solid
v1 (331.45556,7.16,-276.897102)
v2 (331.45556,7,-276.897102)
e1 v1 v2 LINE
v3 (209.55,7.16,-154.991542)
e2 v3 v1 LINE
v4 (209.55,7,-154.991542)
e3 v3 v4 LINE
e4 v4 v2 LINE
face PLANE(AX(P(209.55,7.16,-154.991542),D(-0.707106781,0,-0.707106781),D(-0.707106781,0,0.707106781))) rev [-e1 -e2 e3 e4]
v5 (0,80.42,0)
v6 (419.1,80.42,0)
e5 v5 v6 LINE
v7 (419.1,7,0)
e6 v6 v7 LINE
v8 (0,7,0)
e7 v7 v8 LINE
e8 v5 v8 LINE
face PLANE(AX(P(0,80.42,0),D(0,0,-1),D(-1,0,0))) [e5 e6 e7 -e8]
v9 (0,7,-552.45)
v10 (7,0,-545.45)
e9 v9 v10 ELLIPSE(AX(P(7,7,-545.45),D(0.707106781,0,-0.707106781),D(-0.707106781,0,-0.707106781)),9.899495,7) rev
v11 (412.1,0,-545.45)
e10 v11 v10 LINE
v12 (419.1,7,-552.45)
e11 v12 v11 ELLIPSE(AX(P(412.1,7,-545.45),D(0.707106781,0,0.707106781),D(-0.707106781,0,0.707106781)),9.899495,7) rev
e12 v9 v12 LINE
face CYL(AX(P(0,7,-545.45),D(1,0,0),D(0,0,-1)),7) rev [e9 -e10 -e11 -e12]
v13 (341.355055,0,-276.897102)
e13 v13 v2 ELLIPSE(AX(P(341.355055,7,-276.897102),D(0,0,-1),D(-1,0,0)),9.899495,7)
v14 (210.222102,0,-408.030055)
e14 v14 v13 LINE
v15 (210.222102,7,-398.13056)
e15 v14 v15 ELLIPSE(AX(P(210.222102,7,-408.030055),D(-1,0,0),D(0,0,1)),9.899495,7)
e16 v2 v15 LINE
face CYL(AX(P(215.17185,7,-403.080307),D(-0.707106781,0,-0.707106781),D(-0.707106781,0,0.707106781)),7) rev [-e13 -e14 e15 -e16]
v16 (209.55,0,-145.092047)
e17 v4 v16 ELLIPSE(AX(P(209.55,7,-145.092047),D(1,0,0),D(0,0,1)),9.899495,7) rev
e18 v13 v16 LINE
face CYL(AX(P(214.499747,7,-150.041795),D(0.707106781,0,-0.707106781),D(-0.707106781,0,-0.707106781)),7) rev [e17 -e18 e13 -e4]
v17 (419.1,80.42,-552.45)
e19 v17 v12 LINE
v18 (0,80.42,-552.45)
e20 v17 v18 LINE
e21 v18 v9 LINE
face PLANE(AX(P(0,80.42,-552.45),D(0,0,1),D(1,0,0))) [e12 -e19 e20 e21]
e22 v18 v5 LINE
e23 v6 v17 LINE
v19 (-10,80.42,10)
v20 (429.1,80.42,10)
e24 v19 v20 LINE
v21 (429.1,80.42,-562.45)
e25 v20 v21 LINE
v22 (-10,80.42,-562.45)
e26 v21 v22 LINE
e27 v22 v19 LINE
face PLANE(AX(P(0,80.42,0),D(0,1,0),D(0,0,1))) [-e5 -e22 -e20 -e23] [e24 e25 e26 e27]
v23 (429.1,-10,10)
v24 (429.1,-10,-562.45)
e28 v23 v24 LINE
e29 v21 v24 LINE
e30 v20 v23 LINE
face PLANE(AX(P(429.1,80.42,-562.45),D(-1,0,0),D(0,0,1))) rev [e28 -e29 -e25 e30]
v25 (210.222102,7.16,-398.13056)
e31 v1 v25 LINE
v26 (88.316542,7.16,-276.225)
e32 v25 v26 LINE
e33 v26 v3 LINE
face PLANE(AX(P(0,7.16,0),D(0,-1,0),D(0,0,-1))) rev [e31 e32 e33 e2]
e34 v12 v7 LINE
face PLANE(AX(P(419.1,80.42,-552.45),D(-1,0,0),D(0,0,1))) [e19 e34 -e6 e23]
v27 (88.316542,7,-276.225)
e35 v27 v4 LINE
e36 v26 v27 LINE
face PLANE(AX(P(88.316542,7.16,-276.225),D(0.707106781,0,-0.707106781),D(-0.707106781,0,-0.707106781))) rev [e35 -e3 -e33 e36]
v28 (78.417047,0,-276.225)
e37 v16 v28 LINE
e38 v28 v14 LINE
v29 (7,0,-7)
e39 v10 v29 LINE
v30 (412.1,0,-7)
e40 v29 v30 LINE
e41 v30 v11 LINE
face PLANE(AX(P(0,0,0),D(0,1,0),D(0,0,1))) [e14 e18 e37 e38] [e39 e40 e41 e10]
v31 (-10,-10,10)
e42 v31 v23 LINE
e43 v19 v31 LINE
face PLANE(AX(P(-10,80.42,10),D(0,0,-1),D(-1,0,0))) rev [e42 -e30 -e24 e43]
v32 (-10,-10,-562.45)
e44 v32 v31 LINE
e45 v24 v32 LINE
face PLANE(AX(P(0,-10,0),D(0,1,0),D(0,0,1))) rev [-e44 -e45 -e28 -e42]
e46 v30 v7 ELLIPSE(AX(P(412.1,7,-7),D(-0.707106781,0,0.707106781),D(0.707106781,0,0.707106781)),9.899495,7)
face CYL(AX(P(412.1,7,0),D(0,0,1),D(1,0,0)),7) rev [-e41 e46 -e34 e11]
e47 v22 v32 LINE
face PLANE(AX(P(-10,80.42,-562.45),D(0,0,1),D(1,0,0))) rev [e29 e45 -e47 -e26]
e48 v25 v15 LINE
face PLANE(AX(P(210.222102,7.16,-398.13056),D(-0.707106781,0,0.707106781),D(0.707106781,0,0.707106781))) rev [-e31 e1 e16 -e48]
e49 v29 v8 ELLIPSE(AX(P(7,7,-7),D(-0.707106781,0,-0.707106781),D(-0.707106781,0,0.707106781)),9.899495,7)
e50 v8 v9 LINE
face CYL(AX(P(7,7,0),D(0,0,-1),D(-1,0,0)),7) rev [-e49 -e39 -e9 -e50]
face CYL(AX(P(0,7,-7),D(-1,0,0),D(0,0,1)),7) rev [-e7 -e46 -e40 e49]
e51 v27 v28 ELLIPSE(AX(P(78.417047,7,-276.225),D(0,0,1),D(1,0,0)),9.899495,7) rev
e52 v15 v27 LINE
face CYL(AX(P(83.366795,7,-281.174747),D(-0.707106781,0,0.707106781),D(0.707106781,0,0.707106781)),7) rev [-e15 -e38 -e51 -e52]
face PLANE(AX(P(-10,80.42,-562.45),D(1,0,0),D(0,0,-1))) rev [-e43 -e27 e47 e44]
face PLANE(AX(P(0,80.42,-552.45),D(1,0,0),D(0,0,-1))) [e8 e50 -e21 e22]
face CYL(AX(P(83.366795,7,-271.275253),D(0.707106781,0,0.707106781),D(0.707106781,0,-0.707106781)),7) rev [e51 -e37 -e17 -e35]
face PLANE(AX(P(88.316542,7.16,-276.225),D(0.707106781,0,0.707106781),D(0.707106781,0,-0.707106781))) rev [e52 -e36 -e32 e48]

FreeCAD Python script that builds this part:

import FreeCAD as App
import Part
import Sketcher
Q = App.Units.Quantity


def edges_at(feature, points):
    """Names of the edges that pass closest to the given points."""
    edges = feature.Shape.Edges
    near = lambda p: min(range(len(edges)), key=lambda i: edges[i].distToShape(Part.Vertex(*p))[0])
    return sorted({f"Edge{near(p) + 1}" for p in points})

doc = App.newDocument("Part")
body = doc.addObject("PartDesign::Body", "Body")

# Sketch on XZ plane
sketch1 = doc.addObject("Sketcher::SketchObject", "Sketch")
body.addObject(sketch1)
sketch1.AttachmentSupport = (doc.XZ_Plane, [""])
sketch1.MapMode = "FlatFace"
sketch1.addGeometry(Part.LineSegment(App.Vector(-10, -562.45, 0), App.Vector(-10, 10, 0)), False)
sketch1.addGeometry(Part.LineSegment(App.Vector(-10, 10, 0), App.Vector(429.1, 10, 0)), False)
sketch1.addGeometry(Part.LineSegment(App.Vector(429.1, 10, 0), App.Vector(429.1, -562.45, 0)), False)
sketch1.addGeometry(Part.LineSegment(App.Vector(429.1, -562.45, 0), App.Vector(-10, -562.45, 0)), False)
sketch1.addGeometry(Part.LineSegment(App.Vector(419.1, 0, 0), App.Vector(0, 0, 0)), False)
sketch1.addGeometry(Part.LineSegment(App.Vector(0, 0, 0), App.Vector(0, -552.45, 0)), False)
sketch1.addGeometry(Part.LineSegment(App.Vector(0, -552.45, 0), App.Vector(419.1, -552.45, 0)), False)
sketch1.addGeometry(Part.LineSegment(App.Vector(419.1, -552.45, 0), App.Vector(419.1, 0, 0)), False)
sketch1.addConstraint(Sketcher.Constraint("Coincident", 0, 2, 1, 1))
sketch1.addConstraint(Sketcher.Constraint("Coincident", 1, 2, 2, 1))
sketch1.addConstraint(Sketcher.Constraint("Coincident", 2, 2, 3, 1))
sketch1.addConstraint(Sketcher.Constraint("Coincident", 3, 2, 0, 1))
sketch1.addConstraint(Sketcher.Constraint("Coincident", 4, 2, 5, 1))
sketch1.addConstraint(Sketcher.Constraint("Coincident", 5, 2, 6, 1))
sketch1.addConstraint(Sketcher.Constraint("Coincident", 6, 2, 7, 1))
sketch1.addConstraint(Sketcher.Constraint("Coincident", 7, 2, 4, 1))
sketch1.addConstraint(Sketcher.Constraint("Vertical", 0))
sketch1.addConstraint(Sketcher.Constraint("Horizontal", 1))
sketch1.addConstraint(Sketcher.Constraint("Vertical", 2))
sketch1.addConstraint(Sketcher.Constraint("Horizontal", 3))
sketch1.addConstraint(Sketcher.Constraint("Horizontal", 4))
sketch1.addConstraint(Sketcher.Constraint("Vertical", 5))
sketch1.addConstraint(Sketcher.Constraint("Horizontal", 6))
sketch1.addConstraint(Sketcher.Constraint("Vertical", 7))
sketch1.addConstraint(Sketcher.Constraint("Coincident", 4, 2, -1, 1))
sketch1.addConstraint(Sketcher.Constraint("DistanceX", 1, 1, 1, 2, Q("439.1 mm")))
sketch1.addConstraint(Sketcher.Constraint("DistanceX", 4, 2, 4, 1, Q("419.1 mm")))
sketch1.addConstraint(Sketcher.Constraint("DistanceX", 0, 2, -1, 1, Q("10 mm")))
sketch1.addConstraint(Sketcher.Constraint("DistanceY", -1, 1, 0, 2, Q("10 mm")))
sketch1.addConstraint(Sketcher.Constraint("DistanceY", 3, 2, 5, 2, Q("10 mm")))
sketch1.addConstraint(Sketcher.Constraint("DistanceY", 0, 1, 0, 2, Q("572.45 mm")))
pad1 = doc.addObject("PartDesign::Pad", "Pad")
body.addObject(pad1)
pad1.Profile = sketch1
pad1.Length = 80.42
pad1.Reversed = True
body2 = doc.addObject("PartDesign::Body", "Body001")

# Sketch on XZ plane
sketch2 = doc.addObject("Sketcher::SketchObject", "Sketch001")
body2.addObject(sketch2)
sketch2.AttachmentSupport = (doc.getObject("XZ_Plane001"), [""])
sketch2.MapMode = "FlatFace"
sketch2.addGeometry(Part.LineSegment(App.Vector(88.316542, -276.225, 0), App.Vector(209.55, -154.991542, 0)), False)
sketch2.addGeometry(Part.LineSegment(App.Vector(209.55, -154.991542, 0), App.Vector(331.45556, -276.897102, 0)), False)
sketch2.addGeometry(Part.LineSegment(App.Vector(331.45556, -276.897102, 0), App.Vector(210.222102, -398.13056, 0)), False)
sketch2.addGeometry(Part.LineSegment(App.Vector(210.222102, -398.13056, 0), App.Vector(88.316542, -276.225, 0)), False)
sketch2.addConstraint(Sketcher.Constraint("Coincident", 0, 2, 1, 1))
sketch2.addConstraint(Sketcher.Constraint("Coincident", 1, 2, 2, 1))
sketch2.addConstraint(Sketcher.Constraint("Coincident", 2, 2, 3, 1))
sketch2.addConstraint(Sketcher.Constraint("Coincident", 3, 2, 0, 1))
sketch2.addConstraint(Sketcher.Constraint("Perpendicular", 0, 1))
sketch2.addConstraint(Sketcher.Constraint("Perpendicular", 1, 2))
sketch2.addConstraint(Sketcher.Constraint("Perpendicular", 2, 3))
sketch2.addConstraint(Sketcher.Constraint("Angle", 0, Q("45 deg")))
sketch2.addConstraint(Sketcher.Constraint("Distance", 0, Q("171.45 mm")))
sketch2.addConstraint(Sketcher.Constraint("DistanceX", -1, 1, 0, 2, Q("209.55 mm")))
sketch2.addConstraint(Sketcher.Constraint("DistanceY", 3, 2, -1, 1, Q("276.225 mm")))
sketch2.addConstraint(Sketcher.Constraint("DistanceX", -1, 1, 1, 2, Q("331.45556 mm")))
pad2 = doc.addObject("PartDesign::Pad", "Pad001")
body2.addObject(pad2)
pad2.Profile = sketch2
pad2.Length = 7.16
pad2.Reversed = True
body.AllowCompound = True
doc.recompute()

boolean = doc.addObject("PartDesign::Boolean", "Boolean")
body.addObject(boolean)
boolean.Type = "Fuse"
boolean.addObjects([body2])

# Sketch on XZ plane
sketch3 = doc.addObject("Sketcher::SketchObject", "Sketch002")
body.addObject(sketch3)
sketch3.AttachmentSupport = (doc.XZ_Plane, [""])
sketch3.MapMode = "FlatFace"
sketch3.addGeometry(Part.LineSegment(App.Vector(-10, -562.45, 0), App.Vector(-10, 10, 0)), False)
sketch3.addGeometry(Part.LineSegment(App.Vector(-10, 10, 0), App.Vector(429.1, 10, 0)), False)
sketch3.addGeometry(Part.LineSegment(App.Vector(429.1, 10, 0), App.Vector(429.1, -562.45, 0)), False)
sketch3.addGeometry(Part.LineSegment(App.Vector(429.1, -562.45, 0), App.Vector(-10, -562.45, 0)), False)
sketch3.addConstraint(Sketcher.Constraint("Coincident", 0, 2, 1, 1))
sketch3.addConstraint(Sketcher.Constraint("Coincident", 1, 2, 2, 1))
sketch3.addConstraint(Sketcher.Constraint("Coincident", 2, 2, 3, 1))
sketch3.addConstraint(Sketcher.Constraint("Coincident", 3, 2, 0, 1))
sketch3.addConstraint(Sketcher.Constraint("Vertical", 0))
sketch3.addConstraint(Sketcher.Constraint("Horizontal", 1))
sketch3.addConstraint(Sketcher.Constraint("Vertical", 2))
sketch3.addConstraint(Sketcher.Constraint("Horizontal", 3))
sketch3.addConstraint(Sketcher.Constraint("DistanceX", 1, 1, 1, 2, Q("439.1 mm")))
sketch3.addConstraint(Sketcher.Constraint("DistanceX", 0, 2, -1, 1, Q("10 mm")))
sketch3.addConstraint(Sketcher.Constraint("DistanceY", -1, 1, 0, 2, Q("10 mm")))
sketch3.addConstraint(Sketcher.Constraint("DistanceY", 0, 1, 0, 2, Q("572.45 mm")))
pad3 = doc.addObject("PartDesign::Pad", "Pad002")
body.addObject(pad3)
pad3.Profile = sketch3
pad3.Length = 10
doc.recompute()

fillet = doc.addObject("PartDesign::Fillet", "Fillet")
body.addObject(fillet)
fillet.Base = (pad3, edges_at(pad3, [
    (0, 0, -276.225),
    (209.55, 0, 0),
    (419.1, 0, -276.225),
    (209.55, 0, -552.45),
    (149.269, 0, -337.178),
    (148.933, 0, -215.608),
    (270.503, 0, -215.944),
    (270.839, 0, -337.514),
]))
fillet.Radius = 7

doc.recompute()
